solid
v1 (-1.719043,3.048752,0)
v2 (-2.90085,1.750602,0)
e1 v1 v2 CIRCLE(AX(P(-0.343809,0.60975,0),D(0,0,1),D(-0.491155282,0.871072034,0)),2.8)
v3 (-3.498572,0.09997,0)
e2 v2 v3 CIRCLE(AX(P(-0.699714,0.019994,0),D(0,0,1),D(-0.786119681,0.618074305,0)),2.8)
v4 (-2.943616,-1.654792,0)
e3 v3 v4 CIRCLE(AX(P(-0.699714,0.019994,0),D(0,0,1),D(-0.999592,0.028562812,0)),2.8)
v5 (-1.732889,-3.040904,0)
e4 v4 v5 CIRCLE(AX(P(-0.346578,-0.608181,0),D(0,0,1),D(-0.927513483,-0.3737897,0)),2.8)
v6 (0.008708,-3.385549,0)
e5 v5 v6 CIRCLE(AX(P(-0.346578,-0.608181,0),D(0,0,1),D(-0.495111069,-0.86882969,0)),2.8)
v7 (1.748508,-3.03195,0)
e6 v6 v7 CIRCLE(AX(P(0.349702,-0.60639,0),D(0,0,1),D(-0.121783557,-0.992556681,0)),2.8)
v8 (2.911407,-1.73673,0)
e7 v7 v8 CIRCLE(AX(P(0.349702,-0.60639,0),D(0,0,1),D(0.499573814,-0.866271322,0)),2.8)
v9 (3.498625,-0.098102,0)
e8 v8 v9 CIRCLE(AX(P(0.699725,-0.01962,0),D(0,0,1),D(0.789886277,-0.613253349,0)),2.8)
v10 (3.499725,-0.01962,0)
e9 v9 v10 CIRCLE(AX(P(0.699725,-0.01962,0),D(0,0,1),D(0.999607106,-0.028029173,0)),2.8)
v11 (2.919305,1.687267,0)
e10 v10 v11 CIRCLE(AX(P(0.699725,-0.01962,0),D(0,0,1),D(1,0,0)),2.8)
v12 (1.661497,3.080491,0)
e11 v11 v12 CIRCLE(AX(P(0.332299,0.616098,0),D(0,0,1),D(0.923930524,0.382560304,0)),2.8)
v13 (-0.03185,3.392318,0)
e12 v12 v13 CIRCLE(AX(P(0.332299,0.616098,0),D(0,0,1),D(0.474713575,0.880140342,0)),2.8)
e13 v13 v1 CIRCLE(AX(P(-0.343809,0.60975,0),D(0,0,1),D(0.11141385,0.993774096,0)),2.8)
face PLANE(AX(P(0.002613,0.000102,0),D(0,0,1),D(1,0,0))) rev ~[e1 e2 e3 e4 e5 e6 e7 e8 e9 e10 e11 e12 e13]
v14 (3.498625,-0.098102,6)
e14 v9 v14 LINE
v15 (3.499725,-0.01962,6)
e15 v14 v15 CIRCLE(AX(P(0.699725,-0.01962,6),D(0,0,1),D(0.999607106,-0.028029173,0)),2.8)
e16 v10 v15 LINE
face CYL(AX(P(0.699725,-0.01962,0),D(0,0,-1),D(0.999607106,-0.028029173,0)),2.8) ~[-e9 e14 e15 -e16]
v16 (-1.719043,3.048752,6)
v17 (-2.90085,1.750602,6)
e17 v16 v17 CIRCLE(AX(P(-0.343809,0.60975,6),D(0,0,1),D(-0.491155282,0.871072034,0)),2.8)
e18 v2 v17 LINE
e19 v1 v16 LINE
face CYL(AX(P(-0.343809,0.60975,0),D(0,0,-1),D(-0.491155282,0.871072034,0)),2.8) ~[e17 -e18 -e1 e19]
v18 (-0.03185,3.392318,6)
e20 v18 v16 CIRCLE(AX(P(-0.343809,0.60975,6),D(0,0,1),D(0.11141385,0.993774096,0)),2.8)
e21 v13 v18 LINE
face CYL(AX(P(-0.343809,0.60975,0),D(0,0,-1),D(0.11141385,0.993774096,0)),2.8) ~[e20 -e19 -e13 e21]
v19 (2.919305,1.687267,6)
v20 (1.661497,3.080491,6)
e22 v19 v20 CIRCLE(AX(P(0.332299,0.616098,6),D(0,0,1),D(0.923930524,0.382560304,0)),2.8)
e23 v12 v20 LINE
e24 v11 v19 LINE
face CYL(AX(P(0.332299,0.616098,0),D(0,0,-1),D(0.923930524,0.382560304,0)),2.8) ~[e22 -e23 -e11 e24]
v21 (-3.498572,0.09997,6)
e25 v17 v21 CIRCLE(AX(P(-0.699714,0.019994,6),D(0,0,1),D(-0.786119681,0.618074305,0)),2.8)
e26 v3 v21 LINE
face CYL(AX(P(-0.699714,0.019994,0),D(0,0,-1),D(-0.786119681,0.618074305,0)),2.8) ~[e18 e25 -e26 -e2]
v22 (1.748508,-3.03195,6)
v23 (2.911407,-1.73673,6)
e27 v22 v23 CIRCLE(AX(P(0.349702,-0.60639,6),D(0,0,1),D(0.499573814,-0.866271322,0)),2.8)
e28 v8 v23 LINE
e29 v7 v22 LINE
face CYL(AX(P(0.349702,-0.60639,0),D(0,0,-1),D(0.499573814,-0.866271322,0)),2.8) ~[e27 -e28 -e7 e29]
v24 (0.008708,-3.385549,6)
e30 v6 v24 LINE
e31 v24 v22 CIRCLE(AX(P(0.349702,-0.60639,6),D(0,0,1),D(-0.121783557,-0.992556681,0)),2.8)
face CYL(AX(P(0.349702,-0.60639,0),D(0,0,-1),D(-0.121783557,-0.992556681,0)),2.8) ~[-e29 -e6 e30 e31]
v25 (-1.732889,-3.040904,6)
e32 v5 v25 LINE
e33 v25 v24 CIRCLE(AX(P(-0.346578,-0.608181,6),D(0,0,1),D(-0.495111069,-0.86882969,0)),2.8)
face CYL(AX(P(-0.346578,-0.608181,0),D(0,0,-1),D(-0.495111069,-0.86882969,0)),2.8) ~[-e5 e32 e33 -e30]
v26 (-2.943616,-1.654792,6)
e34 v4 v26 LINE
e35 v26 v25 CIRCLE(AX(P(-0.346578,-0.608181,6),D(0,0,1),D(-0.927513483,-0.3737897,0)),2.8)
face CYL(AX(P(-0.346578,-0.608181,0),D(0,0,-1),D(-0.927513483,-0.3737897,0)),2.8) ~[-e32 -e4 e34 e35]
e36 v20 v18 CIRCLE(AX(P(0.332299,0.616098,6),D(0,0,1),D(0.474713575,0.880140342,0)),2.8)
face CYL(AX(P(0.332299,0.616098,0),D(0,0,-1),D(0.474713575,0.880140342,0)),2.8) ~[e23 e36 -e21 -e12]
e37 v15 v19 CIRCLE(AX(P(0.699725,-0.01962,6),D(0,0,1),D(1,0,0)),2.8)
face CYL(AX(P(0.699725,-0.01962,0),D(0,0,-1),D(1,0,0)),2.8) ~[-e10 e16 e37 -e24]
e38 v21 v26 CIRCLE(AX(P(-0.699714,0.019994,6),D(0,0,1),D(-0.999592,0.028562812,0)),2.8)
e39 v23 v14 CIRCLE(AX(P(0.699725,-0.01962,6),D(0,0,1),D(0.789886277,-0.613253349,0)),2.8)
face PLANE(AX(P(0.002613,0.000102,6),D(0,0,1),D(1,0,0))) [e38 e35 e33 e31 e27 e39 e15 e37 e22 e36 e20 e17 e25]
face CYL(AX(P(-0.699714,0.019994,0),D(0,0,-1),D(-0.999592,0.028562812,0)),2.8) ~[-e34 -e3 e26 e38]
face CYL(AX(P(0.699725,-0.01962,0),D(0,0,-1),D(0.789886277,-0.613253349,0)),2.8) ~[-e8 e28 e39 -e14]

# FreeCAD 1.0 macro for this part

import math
import FreeCAD as App
import Part
import Sketcher

doc = App.newDocument("Part")
params = doc.addObject("Spreadsheet::Sheet", "Params")
for row, (alias, value) in enumerate([
    ("sketch1_radius", "2.8 mm"),
    ("pad1_length", "6 mm"),
], start=1):
    params.set(f"A{row}", alias)
    params.set(f"B{row}", "=" + value)
    params.setAlias(f"B{row}", alias)

body = doc.addObject("PartDesign::Body", "Body")

# Sketch on XY plane
sketch1 = doc.addObject("Sketcher::SketchObject", "Sketch")
body.addObject(sketch1)
sketch1.AttachmentSupport = (doc.XY_Plane, [""])
sketch1.MapMode = "FlatFace"
sketch1.addGeometry(Part.ArcOfCircle(Part.Circle(App.Vector(-0.35, -0.61, 0), App.Vector(0, 0, 1), 2.8), math.radians(-158), math.radians(-120)), False)
sketch1.addGeometry(Part.ArcOfCircle(Part.Circle(App.Vector(-0.35, -0.61, 0), App.Vector(0, 0, 1), 2.8), math.radians(-120), math.radians(-83)), False)
sketch1.addGeometry(Part.ArcOfCircle(Part.Circle(App.Vector(0.35, -0.61, 0), App.Vector(0, 0, 1), 2.8), math.radians(-97), math.radians(-60)), False)
sketch1.addGeometry(Part.ArcOfCircle(Part.Circle(App.Vector(0.35, -0.61, 0), App.Vector(0, 0, 1), 2.8), math.radians(-60), math.radians(-24)), False)
sketch1.addGeometry(Part.ArcOfCircle(Part.Circle(App.Vector(0.7, -0.02, 0), App.Vector(0, 0, 1), 2.8), math.radians(-38), math.radians(-2)), False)
sketch1.addGeometry(Part.ArcOfCircle(Part.Circle(App.Vector(0.7, -0.02, 0), App.Vector(0, 0, 1), 2.8), math.radians(-1.61), math.radians(0)), False)
sketch1.addGeometry(Part.ArcOfCircle(Part.Circle(App.Vector(0.7, -0.02, 0), App.Vector(0, 0, 1), 2.8), math.radians(0), math.radians(38)), False)
sketch1.addGeometry(Part.ArcOfCircle(Part.Circle(App.Vector(0.33, 0.62, 0), App.Vector(0, 0, 1), 2.8), math.radians(22), math.radians(62)), False)
sketch1.addGeometry(Part.ArcOfCircle(Part.Circle(App.Vector(0.33, 0.62, 0), App.Vector(0, 0, 1), 2.8), math.radians(62), math.radians(97)), False)
sketch1.addGeometry(Part.ArcOfCircle(Part.Circle(App.Vector(-0.34, 0.61, 0), App.Vector(0, 0, 1), 2.8), math.radians(84), math.radians(119)), False)
sketch1.addGeometry(Part.ArcOfCircle(Part.Circle(App.Vector(-0.34, 0.61, 0), App.Vector(0, 0, 1), 2.8), math.radians(119), math.radians(156)), False)
sketch1.addGeometry(Part.ArcOfCircle(Part.Circle(App.Vector(-0.7, 0.02, 0), App.Vector(0, 0, 1), 2.8), math.radians(142), math.radians(178)), False)
sketch1.addGeometry(Part.ArcOfCircle(Part.Circle(App.Vector(-0.7, 0.02, 0), App.Vector(0, 0, 1), 2.8), math.radians(178), math.radians(217)), False)
sketch1.addConstraint(Sketcher.Constraint("Tangent", 0, 2, 1, 1))
sketch1.addConstraint(Sketcher.Constraint("Coincident", 1, 2, 2, 1))
sketch1.addConstraint(Sketcher.Constraint("Tangent", 2, 2, 3, 1))
sketch1.addConstraint(Sketcher.Constraint("Coincident", 3, 2, 4, 1))
sketch1.addConstraint(Sketcher.Constraint("Tangent", 4, 2, 5, 1))
sketch1.addConstraint(Sketcher.Constraint("Tangent", 5, 2, 6, 1))
sketch1.addConstraint(Sketcher.Constraint("Coincident", 6, 2, 7, 1))
sketch1.addConstraint(Sketcher.Constraint("Tangent", 7, 2, 8, 1))
sketch1.addConstraint(Sketcher.Constraint("Coincident", 8, 2, 9, 1))
sketch1.addConstraint(Sketcher.Constraint("Tangent", 9, 2, 10, 1))
sketch1.addConstraint(Sketcher.Constraint("Coincident", 10, 2, 11, 1))
sketch1.addConstraint(Sketcher.Constraint("Tangent", 11, 2, 12, 1))
sketch1.addConstraint(Sketcher.Constraint("Coincident", 12, 2, 0, 1))
sketch1.addConstraint(Sketcher.Constraint("Coincident", 6, 3, 4, 3))
sketch1.addConstraint(Sketcher.Constraint("Equal", 0, 1))
sketch1.addConstraint(Sketcher.Constraint("Equal", 1, 2))
sketch1.addConstraint(Sketcher.Constraint("Equal", 2, 3))
sketch1.addConstraint(Sketcher.Constraint("Equal", 3, 4))
sketch1.addConstraint(Sketcher.Constraint("Equal", 6, 7))
sketch1.addConstraint(Sketcher.Constraint("Equal", 7, 8))
sketch1.addConstraint(Sketcher.Constraint("Equal", 8, 9))
sketch1.addConstraint(Sketcher.Constraint("Equal", 9, 10))
sketch1.addConstraint(Sketcher.Constraint("Equal", 10, 11))
sketch1.addConstraint(Sketcher.Constraint("Equal", 11, 12))
sketch1.addConstraint(Sketcher.Constraint("Horizontal", 6, 3, 5, 2))
sketch1.addConstraint(Sketcher.Constraint("Radius", 0, 2.8))
sketch1.addConstraint(Sketcher.Constraint("DistanceY", 10, 3, 9, 2, 2.439002))
sketch1.addConstraint(Sketcher.Constraint("DistanceX", -1, 1, 2, 3, 0.349702))
sketch1.addConstraint(Sketcher.Constraint("DistanceX", -1, 1, 7, 3, 0.332299))
sketch1.addConstraint(Sketcher.Constraint("DistanceY", -1, 1, 7, 3, 0.616098))
sketch1.addConstraint(Sketcher.Constraint("DistanceX", 1, 2, 2, 2, 1.739801))
sketch1.addConstraint(Sketcher.Constraint("DistanceY", 1, 2, 2, 2, 0.353599))
sketch1.addConstraint(Sketcher.Constraint("DistanceX", 2, 2, 3, 2, 1.162898))
sketch1.addConstraint(Sketcher.Constraint("DistanceX", 6, 3, 4, 2, 2.7989))
sketch1.addConstraint(Sketcher.Constraint("DistanceX", 8, 3, 7, 2, 1.329198))
sketch1.addConstraint(Sketcher.Constraint("DistanceX", 12, 2, 11, 3, 2.243901))
sketch1.addConstraint(Sketcher.Constraint("DistanceY", 0, 3, -1, 1, 0.608181))
sketch1.addConstraint(Sketcher.Constraint("DistanceY", 2, 3, -1, 1, 0.60639))
sketch1.addConstraint(Sketcher.Constraint("DistanceY", 4, 3, -1, 1, 0.01962))
sketch1.addConstraint(Sketcher.Constraint("DistanceX", 9, 3, -1, 1, 0.343809))
sketch1.addConstraint(Sketcher.Constraint("DistanceY", -1, 1, 9, 3, 0.60975))
sketch1.addConstraint(Sketcher.Constraint("DistanceX", 0, 2, -1, 1, 1.732889))
sketch1.addConstraint(Sketcher.Constraint("DistanceX", 10, 2, -1, 1, 2.90085))
sketch1.addConstraint(Sketcher.Constraint("DistanceY", -1, 1, 11, 2, 0.09997))
sketch1.setExpression("Constraints[25]", "Params.sketch1_radius")
pad1 = doc.addObject("PartDesign::Pad", "Pad")
body.addObject(pad1)
pad1.Profile = sketch1
pad1.setExpression("Length", "Params.pad1_length")

doc.recompute()
